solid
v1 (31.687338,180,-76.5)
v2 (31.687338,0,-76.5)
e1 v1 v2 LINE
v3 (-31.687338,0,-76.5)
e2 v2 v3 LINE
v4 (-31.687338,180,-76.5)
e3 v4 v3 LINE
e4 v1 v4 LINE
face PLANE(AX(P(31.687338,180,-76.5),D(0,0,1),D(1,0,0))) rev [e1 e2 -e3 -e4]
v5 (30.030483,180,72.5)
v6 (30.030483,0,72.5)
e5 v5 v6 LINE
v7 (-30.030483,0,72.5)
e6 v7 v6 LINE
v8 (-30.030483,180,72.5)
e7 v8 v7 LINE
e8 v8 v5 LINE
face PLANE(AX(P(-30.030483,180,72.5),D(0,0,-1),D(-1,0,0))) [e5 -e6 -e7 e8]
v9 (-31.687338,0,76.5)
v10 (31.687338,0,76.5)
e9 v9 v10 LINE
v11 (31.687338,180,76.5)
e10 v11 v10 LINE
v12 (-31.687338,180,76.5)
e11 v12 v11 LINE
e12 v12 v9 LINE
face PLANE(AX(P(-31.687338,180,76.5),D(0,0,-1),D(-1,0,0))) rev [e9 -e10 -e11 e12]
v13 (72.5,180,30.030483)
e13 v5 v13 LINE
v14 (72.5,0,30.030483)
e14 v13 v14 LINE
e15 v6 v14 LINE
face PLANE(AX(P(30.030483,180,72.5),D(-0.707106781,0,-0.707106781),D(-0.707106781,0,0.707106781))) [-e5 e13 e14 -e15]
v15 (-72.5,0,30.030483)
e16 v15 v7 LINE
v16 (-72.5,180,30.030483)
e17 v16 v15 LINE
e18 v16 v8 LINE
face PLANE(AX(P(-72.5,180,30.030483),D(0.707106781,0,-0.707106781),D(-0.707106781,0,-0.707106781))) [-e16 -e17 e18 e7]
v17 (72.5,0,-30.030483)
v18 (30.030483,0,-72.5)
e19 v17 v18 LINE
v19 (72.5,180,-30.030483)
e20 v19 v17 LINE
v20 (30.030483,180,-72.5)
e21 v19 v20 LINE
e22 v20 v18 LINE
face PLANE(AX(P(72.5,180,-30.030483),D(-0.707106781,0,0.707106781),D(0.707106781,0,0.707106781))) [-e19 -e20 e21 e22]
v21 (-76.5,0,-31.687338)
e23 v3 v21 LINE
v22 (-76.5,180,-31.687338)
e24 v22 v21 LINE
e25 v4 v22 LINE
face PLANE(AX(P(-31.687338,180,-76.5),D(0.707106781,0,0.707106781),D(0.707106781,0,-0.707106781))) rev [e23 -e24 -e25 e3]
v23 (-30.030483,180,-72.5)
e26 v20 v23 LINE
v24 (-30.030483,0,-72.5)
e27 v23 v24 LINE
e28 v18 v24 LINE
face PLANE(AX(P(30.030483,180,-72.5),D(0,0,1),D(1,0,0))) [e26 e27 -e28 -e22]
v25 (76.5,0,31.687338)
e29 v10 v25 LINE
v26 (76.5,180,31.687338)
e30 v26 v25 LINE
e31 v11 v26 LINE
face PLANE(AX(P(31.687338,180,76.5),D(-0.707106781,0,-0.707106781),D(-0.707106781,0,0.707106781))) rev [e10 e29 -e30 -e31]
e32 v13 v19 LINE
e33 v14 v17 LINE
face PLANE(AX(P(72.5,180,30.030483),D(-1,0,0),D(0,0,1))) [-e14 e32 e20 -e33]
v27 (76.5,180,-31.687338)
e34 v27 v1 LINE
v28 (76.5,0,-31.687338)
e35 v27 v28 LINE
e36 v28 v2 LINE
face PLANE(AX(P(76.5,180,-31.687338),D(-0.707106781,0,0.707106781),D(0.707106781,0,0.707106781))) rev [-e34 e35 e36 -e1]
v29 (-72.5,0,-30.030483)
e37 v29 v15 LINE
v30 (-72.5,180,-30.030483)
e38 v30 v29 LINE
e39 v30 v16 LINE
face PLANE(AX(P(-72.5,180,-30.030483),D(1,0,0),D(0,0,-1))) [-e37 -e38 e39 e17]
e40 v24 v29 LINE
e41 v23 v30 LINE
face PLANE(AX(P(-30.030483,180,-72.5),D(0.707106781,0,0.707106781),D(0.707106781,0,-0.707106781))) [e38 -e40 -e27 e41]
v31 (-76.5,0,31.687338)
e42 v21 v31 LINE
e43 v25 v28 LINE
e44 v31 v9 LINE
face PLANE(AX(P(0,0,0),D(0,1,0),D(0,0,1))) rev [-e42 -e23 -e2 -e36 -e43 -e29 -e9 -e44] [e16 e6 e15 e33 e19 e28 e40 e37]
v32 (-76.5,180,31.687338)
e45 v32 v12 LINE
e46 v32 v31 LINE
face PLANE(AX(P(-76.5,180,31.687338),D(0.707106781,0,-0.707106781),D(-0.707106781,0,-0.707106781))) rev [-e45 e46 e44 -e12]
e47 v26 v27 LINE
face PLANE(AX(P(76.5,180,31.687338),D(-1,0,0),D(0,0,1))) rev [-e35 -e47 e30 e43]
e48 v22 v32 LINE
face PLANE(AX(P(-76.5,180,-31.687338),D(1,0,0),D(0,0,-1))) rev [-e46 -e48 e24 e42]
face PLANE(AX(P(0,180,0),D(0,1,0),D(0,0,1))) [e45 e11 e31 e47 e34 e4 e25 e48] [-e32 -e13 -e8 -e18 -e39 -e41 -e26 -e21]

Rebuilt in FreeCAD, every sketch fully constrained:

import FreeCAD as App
import Part
import Sketcher
Q = App.Units.Quantity


def add_polygon(sketch, points):
    """Adds a closed chain of lines whose ends are joined by coincident constraints."""
    first, n = sketch.GeometryCount, len(points)
    for a, b in zip(points, points[1:] + points[:1]):
        sketch.addGeometry(Part.LineSegment(App.Vector(*a, 0), App.Vector(*b, 0)), False)
    for i in range(n):
        sketch.addConstraint(Sketcher.Constraint("Coincident", first + i, 2, first + (i + 1) % n, 1))

doc = App.newDocument("Part")
body = doc.addObject("PartDesign::Body", "Body")

sketch1 = body.newObject("Sketcher::SketchObject", "Sketch")
sketch1.AttachmentSupport = (doc.getObject("XZ_Plane"), [""])
sketch1.MapMode = "FlatFace"
add_polygon(sketch1, [(-76, -32), (-76, 32), (-32, 76), (32, 76), (76, 32), (76, -32), (32, -76), (-32, -76)])
add_polygon(sketch1, [(-30, 72), (-72, 30), (-72, -30), (-30, -72), (30, -72), (72, -30), (72, 30), (30, 72)])
sketch1.addConstraint([
    Sketcher.Constraint("Vertical", 0),
    Sketcher.Constraint("Horizontal", 2),
    Sketcher.Constraint("Vertical", 4),
    Sketcher.Constraint("Horizontal", 6),
    Sketcher.Constraint("Vertical", 9),
    Sketcher.Constraint("Horizontal", 11),
    Sketcher.Constraint("Vertical", 13),
    Sketcher.Constraint("Horizontal", 15),
    Sketcher.Constraint("Symmetric", 0, 2, 4, 2, -1, 1),
    Sketcher.Constraint("Symmetric", 1, 2, 5, 2, -1, 1),
    Sketcher.Constraint("Symmetric", 8, 2, 12, 2, -1, 1),
    Sketcher.Constraint("Symmetric", 10, 2, 14, 2, -1, 1),
    Sketcher.Constraint("Perpendicular", 1, 3),
    Sketcher.Constraint("Perpendicular", 5, 7),
    Sketcher.Constraint("Perpendicular", 7, 8),
    Sketcher.Constraint("Perpendicular", 8, 10),
    Sketcher.Constraint("Perpendicular", 10, 12),
    Sketcher.Constraint("Perpendicular", 12, 14),
    Sketcher.Constraint("Horizontal", 0, 2, 3, 2),
    Sketcher.Constraint("Horizontal", 4, 2, 7, 2),
    Sketcher.Constraint("Horizontal", 9, 2, 12, 2),
    Sketcher.Constraint("Vertical", 2, 2, 5, 2),
    Sketcher.Constraint("Equal", 6, 0),
    Sketcher.Constraint("Equal", 15, 9),
    Sketcher.Constraint("DistanceX", 0, 2, 3, 2, Q("153 mm")),
    Sketcher.Constraint("DistanceX", 0, 2, 8, 2, Q("4 mm")),
    Sketcher.Constraint("DistanceX", 2, 1, 2, 2, Q("63.374675 mm")),
    Sketcher.Constraint("DistanceX", 11, 1, 11, 2, Q("60.060967 mm")),
])
pad1 = body.newObject("PartDesign::Pad", "Pad")
pad1.Profile = sketch1
pad1.Length = 180
pad1.Reversed = True

doc.recompute()
